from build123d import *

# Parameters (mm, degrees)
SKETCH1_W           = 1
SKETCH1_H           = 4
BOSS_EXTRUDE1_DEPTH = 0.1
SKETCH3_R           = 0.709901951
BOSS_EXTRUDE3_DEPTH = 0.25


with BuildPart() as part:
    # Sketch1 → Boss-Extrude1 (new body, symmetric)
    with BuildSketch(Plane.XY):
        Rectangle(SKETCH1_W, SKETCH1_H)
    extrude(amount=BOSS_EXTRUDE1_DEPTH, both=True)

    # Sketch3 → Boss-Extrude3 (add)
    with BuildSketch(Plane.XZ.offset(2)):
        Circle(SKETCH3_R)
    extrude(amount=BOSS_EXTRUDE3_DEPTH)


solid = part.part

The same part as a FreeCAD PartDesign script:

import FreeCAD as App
import Part
import Sketcher
Q = App.Units.Quantity

doc = App.newDocument("Part")
body = doc.addObject("PartDesign::Body", "Body")

# Sketch on XY plane
sketch1 = body.newObject("Sketcher::SketchObject", "Sketch")
sketch1.AttachmentSupport = (doc.getObject("XY_Plane"), [""])
sketch1.MapMode = "FlatFace"
sketch1.addGeometry(Part.LineSegment(App.Vector(-0.5, 2, 0), App.Vector(-0.5, -2, 0)), False)
sketch1.addGeometry(Part.LineSegment(App.Vector(-0.5, -2, 0), App.Vector(0.5, -2, 0)), False)
sketch1.addGeometry(Part.LineSegment(App.Vector(0.5, -2, 0), App.Vector(0.5, 2, 0)), False)
sketch1.addGeometry(Part.LineSegment(App.Vector(0.5, 2, 0), App.Vector(-0.5, 2, 0)), False)
sketch1.addConstraint(Sketcher.Constraint("Coincident", 0, 2, 1, 1))
sketch1.addConstraint(Sketcher.Constraint("Coincident", 1, 2, 2, 1))
sketch1.addConstraint(Sketcher.Constraint("Coincident", 2, 2, 3, 1))
sketch1.addConstraint(Sketcher.Constraint("Coincident", 3, 2, 0, 1))
sketch1.addConstraint(Sketcher.Constraint("Vertical", 0))
sketch1.addConstraint(Sketcher.Constraint("Horizontal", 1))
sketch1.addConstraint(Sketcher.Constraint("Vertical", 2))
sketch1.addConstraint(Sketcher.Constraint("Horizontal", 3))
sketch1.addConstraint(Sketcher.Constraint("Symmetric", 0, 2, 2, 2, -1, 1))
sketch1.addConstraint(Sketcher.Constraint("DistanceX", 1, 1, 1, 2, Q("1 mm")))
sketch1.addConstraint(Sketcher.Constraint("DistanceY", 0, 2, 0, 1, Q("4 mm")))
pad1 = body.newObject("PartDesign::Pad", "Pad")
pad1.Profile = sketch1
pad1.Length = 0.2
pad1.Midplane = True

# Sketch on XZ plane
sketch2 = body.newObject("Sketcher::SketchObject", "Sketch001")
sketch2.AttachmentSupport = (doc.getObject("XZ_Plane"), [""])
sketch2.MapMode = "FlatFace"
sketch2.AttachmentOffset = App.Placement(App.Vector(0, 0, 2), App.Rotation())
sketch2.addGeometry(Part.Circle(App.Vector(0, 0, 0), App.Vector(0, 0, 1), 0.709902), False)
sketch2.addConstraint(Sketcher.Constraint("Coincident", 0, 3, -1, 1))
sketch2.addConstraint(Sketcher.Constraint("Diameter", 0, Q("1.419804 mm")))
pad2 = body.newObject("PartDesign::Pad", "Pad001")
pad2.Profile = sketch2
pad2.Length = 0.25

doc.recompute()
